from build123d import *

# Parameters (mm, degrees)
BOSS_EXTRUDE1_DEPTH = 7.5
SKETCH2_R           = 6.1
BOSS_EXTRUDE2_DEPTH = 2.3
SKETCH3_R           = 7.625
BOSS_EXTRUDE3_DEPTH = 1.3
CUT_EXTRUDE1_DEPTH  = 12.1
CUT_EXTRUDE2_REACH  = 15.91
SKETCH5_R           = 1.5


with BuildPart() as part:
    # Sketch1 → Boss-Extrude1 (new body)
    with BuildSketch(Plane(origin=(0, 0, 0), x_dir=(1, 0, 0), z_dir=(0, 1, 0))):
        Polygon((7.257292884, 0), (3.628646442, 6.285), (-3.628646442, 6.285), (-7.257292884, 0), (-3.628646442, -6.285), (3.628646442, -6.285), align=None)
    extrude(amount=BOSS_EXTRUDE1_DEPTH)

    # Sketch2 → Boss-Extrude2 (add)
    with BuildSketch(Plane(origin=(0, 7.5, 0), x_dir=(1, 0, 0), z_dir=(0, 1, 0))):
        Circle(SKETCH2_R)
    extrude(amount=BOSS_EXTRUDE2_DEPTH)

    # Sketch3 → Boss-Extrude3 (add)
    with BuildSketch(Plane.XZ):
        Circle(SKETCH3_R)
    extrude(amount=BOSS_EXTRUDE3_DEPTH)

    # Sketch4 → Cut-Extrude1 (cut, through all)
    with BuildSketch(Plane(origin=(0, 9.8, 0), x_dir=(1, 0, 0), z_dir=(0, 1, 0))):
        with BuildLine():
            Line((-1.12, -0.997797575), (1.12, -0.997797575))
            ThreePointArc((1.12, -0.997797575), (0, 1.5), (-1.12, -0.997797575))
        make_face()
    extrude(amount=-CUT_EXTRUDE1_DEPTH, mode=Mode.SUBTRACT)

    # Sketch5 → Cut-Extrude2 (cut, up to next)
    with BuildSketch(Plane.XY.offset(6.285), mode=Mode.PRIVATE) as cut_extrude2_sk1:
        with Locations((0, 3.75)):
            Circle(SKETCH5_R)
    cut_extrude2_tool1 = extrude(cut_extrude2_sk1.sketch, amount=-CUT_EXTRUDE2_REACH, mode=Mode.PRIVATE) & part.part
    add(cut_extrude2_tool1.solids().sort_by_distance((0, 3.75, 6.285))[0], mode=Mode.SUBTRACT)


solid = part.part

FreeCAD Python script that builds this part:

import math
import FreeCAD as App
import Part
import Sketcher

V = App.Vector
Q = App.Units.Quantity


def add_polygon(sketch, points):
    """Adds a closed chain of lines whose ends are joined by coincident constraints."""
    first, n = sketch.GeometryCount, len(points)
    for a, b in zip(points, points[1:] + points[:1]):
        sketch.addGeometry(Part.LineSegment(App.Vector(*a, 0), App.Vector(*b, 0)), False)
    for i in range(n):
        sketch.addConstraint(Sketcher.Constraint("Coincident", first + i, 2, first + (i + 1) % n, 1))

doc = App.newDocument("Part")
body = doc.addObject("PartDesign::Body", "Body")

sketch1 = body.newObject("Sketcher::SketchObject", "Sketch")
sketch1.AttachmentSupport = (doc.getObject("XZ_Plane"), [""])
sketch1.MapMode = "FlatFace"
add_polygon(sketch1, [(7, 0), (4, -6), (-4, -6), (-7, 0), (-4, 6), (4, 6)])
sketch1.addConstraint([
    Sketcher.Constraint("Horizontal", 1),
    Sketcher.Constraint("Horizontal", 4),
    Sketcher.Constraint("Symmetric", 0, 2, 3, 2, -1, 1),
    Sketcher.Constraint("Symmetric", 2, 2, 5, 2, -1, 1),
    Sketcher.Constraint("PointOnObject", 2, 2, -1),
    Sketcher.Constraint("Parallel", 2, 5),
    Sketcher.Constraint("Vertical", 1, 2, 3, 2),
    Sketcher.Constraint("Angle", 0, Q("-120 deg")),
    Sketcher.Constraint("DistanceY", 1, 2, 3, 2, 12.57),
    Sketcher.Constraint("DistanceX", 1, 2, 1, 1, 7.257293),
])
pad1 = body.newObject("PartDesign::Pad", "Pad")
pad1.Profile = sketch1
pad1.Length = 7.5
pad1.Reversed = True

sketch2 = body.newObject("Sketcher::SketchObject", "Sketch001")
sketch2.AttachmentSupport = (doc.getObject("XZ_Plane"), [""])
sketch2.MapMode = "FlatFace"
sketch2.AttachmentOffset = App.Placement(V(0, 0, -7.5), App.Rotation())
sketch2.addGeometry(Part.Circle(V(0, 0, 0), V(0, 0, 1), 6), False)
sketch2.addConstraint([
    Sketcher.Constraint("Coincident", 0, 3, -1, 1),
    Sketcher.Constraint("Diameter", 0, 12.2),
])
pad2 = body.newObject("PartDesign::Pad", "Pad001")
pad2.Profile = sketch2
pad2.Length = 2.3
pad2.Reversed = True

sketch3 = body.newObject("Sketcher::SketchObject", "Sketch002")
sketch3.AttachmentSupport = (doc.getObject("XZ_Plane"), [""])
sketch3.MapMode = "FlatFace"
sketch3.addGeometry(Part.Circle(V(0, 0, 0), V(0, 0, 1), 8), False)
sketch3.addConstraint([
    Sketcher.Constraint("Coincident", 0, 3, -1, 1),
    Sketcher.Constraint("Diameter", 0, 15.25),
])
pad3 = body.newObject("PartDesign::Pad", "Pad002")
pad3.Profile = sketch3
pad3.Length = 1.3

sketch4 = body.newObject("Sketcher::SketchObject", "Sketch003")
sketch4.AttachmentSupport = (doc.getObject("XZ_Plane"), [""])
sketch4.MapMode = "FlatFace"
sketch4.AttachmentOffset = App.Placement(V(0, 0, -9.8), App.Rotation())
sketch4.addGeometry([
    Part.LineSegment(V(-1.1, 1, 0), V(1.1, 1, 0)),
    Part.ArcOfCircle(Part.Circle(V(0, 0, 0), V(0, 0, 1), 1.5), math.radians(138), math.radians(402)),
], False)
sketch4.addConstraint([
    Sketcher.Constraint("Coincident", 0, 1, 1, 1),
    Sketcher.Constraint("Coincident", 1, 2, 0, 2),
    Sketcher.Constraint("Horizontal", 0),
    Sketcher.Constraint("Coincident", 1, 3, -1, 1),
    Sketcher.Constraint("Radius", 1, 1.5),
    Sketcher.Constraint("DistanceX", 0, 1, 0, 2, 2.24),
])
pocket1 = body.newObject("PartDesign::Pocket", "Pocket")
pocket1.Profile = sketch4
pocket1.Type = "ThroughAll"
pocket1.Reversed = True

sketch5 = body.newObject("Sketcher::SketchObject", "Sketch004")
sketch5.AttachmentSupport = (doc.getObject("XY_Plane"), [""])
sketch5.MapMode = "FlatFace"
sketch5.AttachmentOffset = App.Placement(V(0, 0, 6.285), App.Rotation())
sketch5.addGeometry(Part.Circle(V(0, 3.8, 0), V(0, 0, 1), 1.5), False)
sketch5.addConstraint([
    Sketcher.Constraint("PointOnObject", 0, 3, -2),
    Sketcher.Constraint("Diameter", 0, 3.0),
    Sketcher.Constraint("DistanceY", -1, 1, 0, 3, 3.75),
])
pocket2 = body.newObject("PartDesign::Pocket", "Pocket001")
pocket2.Profile = sketch5
pocket2.Length = 6.285

doc.recompute()
